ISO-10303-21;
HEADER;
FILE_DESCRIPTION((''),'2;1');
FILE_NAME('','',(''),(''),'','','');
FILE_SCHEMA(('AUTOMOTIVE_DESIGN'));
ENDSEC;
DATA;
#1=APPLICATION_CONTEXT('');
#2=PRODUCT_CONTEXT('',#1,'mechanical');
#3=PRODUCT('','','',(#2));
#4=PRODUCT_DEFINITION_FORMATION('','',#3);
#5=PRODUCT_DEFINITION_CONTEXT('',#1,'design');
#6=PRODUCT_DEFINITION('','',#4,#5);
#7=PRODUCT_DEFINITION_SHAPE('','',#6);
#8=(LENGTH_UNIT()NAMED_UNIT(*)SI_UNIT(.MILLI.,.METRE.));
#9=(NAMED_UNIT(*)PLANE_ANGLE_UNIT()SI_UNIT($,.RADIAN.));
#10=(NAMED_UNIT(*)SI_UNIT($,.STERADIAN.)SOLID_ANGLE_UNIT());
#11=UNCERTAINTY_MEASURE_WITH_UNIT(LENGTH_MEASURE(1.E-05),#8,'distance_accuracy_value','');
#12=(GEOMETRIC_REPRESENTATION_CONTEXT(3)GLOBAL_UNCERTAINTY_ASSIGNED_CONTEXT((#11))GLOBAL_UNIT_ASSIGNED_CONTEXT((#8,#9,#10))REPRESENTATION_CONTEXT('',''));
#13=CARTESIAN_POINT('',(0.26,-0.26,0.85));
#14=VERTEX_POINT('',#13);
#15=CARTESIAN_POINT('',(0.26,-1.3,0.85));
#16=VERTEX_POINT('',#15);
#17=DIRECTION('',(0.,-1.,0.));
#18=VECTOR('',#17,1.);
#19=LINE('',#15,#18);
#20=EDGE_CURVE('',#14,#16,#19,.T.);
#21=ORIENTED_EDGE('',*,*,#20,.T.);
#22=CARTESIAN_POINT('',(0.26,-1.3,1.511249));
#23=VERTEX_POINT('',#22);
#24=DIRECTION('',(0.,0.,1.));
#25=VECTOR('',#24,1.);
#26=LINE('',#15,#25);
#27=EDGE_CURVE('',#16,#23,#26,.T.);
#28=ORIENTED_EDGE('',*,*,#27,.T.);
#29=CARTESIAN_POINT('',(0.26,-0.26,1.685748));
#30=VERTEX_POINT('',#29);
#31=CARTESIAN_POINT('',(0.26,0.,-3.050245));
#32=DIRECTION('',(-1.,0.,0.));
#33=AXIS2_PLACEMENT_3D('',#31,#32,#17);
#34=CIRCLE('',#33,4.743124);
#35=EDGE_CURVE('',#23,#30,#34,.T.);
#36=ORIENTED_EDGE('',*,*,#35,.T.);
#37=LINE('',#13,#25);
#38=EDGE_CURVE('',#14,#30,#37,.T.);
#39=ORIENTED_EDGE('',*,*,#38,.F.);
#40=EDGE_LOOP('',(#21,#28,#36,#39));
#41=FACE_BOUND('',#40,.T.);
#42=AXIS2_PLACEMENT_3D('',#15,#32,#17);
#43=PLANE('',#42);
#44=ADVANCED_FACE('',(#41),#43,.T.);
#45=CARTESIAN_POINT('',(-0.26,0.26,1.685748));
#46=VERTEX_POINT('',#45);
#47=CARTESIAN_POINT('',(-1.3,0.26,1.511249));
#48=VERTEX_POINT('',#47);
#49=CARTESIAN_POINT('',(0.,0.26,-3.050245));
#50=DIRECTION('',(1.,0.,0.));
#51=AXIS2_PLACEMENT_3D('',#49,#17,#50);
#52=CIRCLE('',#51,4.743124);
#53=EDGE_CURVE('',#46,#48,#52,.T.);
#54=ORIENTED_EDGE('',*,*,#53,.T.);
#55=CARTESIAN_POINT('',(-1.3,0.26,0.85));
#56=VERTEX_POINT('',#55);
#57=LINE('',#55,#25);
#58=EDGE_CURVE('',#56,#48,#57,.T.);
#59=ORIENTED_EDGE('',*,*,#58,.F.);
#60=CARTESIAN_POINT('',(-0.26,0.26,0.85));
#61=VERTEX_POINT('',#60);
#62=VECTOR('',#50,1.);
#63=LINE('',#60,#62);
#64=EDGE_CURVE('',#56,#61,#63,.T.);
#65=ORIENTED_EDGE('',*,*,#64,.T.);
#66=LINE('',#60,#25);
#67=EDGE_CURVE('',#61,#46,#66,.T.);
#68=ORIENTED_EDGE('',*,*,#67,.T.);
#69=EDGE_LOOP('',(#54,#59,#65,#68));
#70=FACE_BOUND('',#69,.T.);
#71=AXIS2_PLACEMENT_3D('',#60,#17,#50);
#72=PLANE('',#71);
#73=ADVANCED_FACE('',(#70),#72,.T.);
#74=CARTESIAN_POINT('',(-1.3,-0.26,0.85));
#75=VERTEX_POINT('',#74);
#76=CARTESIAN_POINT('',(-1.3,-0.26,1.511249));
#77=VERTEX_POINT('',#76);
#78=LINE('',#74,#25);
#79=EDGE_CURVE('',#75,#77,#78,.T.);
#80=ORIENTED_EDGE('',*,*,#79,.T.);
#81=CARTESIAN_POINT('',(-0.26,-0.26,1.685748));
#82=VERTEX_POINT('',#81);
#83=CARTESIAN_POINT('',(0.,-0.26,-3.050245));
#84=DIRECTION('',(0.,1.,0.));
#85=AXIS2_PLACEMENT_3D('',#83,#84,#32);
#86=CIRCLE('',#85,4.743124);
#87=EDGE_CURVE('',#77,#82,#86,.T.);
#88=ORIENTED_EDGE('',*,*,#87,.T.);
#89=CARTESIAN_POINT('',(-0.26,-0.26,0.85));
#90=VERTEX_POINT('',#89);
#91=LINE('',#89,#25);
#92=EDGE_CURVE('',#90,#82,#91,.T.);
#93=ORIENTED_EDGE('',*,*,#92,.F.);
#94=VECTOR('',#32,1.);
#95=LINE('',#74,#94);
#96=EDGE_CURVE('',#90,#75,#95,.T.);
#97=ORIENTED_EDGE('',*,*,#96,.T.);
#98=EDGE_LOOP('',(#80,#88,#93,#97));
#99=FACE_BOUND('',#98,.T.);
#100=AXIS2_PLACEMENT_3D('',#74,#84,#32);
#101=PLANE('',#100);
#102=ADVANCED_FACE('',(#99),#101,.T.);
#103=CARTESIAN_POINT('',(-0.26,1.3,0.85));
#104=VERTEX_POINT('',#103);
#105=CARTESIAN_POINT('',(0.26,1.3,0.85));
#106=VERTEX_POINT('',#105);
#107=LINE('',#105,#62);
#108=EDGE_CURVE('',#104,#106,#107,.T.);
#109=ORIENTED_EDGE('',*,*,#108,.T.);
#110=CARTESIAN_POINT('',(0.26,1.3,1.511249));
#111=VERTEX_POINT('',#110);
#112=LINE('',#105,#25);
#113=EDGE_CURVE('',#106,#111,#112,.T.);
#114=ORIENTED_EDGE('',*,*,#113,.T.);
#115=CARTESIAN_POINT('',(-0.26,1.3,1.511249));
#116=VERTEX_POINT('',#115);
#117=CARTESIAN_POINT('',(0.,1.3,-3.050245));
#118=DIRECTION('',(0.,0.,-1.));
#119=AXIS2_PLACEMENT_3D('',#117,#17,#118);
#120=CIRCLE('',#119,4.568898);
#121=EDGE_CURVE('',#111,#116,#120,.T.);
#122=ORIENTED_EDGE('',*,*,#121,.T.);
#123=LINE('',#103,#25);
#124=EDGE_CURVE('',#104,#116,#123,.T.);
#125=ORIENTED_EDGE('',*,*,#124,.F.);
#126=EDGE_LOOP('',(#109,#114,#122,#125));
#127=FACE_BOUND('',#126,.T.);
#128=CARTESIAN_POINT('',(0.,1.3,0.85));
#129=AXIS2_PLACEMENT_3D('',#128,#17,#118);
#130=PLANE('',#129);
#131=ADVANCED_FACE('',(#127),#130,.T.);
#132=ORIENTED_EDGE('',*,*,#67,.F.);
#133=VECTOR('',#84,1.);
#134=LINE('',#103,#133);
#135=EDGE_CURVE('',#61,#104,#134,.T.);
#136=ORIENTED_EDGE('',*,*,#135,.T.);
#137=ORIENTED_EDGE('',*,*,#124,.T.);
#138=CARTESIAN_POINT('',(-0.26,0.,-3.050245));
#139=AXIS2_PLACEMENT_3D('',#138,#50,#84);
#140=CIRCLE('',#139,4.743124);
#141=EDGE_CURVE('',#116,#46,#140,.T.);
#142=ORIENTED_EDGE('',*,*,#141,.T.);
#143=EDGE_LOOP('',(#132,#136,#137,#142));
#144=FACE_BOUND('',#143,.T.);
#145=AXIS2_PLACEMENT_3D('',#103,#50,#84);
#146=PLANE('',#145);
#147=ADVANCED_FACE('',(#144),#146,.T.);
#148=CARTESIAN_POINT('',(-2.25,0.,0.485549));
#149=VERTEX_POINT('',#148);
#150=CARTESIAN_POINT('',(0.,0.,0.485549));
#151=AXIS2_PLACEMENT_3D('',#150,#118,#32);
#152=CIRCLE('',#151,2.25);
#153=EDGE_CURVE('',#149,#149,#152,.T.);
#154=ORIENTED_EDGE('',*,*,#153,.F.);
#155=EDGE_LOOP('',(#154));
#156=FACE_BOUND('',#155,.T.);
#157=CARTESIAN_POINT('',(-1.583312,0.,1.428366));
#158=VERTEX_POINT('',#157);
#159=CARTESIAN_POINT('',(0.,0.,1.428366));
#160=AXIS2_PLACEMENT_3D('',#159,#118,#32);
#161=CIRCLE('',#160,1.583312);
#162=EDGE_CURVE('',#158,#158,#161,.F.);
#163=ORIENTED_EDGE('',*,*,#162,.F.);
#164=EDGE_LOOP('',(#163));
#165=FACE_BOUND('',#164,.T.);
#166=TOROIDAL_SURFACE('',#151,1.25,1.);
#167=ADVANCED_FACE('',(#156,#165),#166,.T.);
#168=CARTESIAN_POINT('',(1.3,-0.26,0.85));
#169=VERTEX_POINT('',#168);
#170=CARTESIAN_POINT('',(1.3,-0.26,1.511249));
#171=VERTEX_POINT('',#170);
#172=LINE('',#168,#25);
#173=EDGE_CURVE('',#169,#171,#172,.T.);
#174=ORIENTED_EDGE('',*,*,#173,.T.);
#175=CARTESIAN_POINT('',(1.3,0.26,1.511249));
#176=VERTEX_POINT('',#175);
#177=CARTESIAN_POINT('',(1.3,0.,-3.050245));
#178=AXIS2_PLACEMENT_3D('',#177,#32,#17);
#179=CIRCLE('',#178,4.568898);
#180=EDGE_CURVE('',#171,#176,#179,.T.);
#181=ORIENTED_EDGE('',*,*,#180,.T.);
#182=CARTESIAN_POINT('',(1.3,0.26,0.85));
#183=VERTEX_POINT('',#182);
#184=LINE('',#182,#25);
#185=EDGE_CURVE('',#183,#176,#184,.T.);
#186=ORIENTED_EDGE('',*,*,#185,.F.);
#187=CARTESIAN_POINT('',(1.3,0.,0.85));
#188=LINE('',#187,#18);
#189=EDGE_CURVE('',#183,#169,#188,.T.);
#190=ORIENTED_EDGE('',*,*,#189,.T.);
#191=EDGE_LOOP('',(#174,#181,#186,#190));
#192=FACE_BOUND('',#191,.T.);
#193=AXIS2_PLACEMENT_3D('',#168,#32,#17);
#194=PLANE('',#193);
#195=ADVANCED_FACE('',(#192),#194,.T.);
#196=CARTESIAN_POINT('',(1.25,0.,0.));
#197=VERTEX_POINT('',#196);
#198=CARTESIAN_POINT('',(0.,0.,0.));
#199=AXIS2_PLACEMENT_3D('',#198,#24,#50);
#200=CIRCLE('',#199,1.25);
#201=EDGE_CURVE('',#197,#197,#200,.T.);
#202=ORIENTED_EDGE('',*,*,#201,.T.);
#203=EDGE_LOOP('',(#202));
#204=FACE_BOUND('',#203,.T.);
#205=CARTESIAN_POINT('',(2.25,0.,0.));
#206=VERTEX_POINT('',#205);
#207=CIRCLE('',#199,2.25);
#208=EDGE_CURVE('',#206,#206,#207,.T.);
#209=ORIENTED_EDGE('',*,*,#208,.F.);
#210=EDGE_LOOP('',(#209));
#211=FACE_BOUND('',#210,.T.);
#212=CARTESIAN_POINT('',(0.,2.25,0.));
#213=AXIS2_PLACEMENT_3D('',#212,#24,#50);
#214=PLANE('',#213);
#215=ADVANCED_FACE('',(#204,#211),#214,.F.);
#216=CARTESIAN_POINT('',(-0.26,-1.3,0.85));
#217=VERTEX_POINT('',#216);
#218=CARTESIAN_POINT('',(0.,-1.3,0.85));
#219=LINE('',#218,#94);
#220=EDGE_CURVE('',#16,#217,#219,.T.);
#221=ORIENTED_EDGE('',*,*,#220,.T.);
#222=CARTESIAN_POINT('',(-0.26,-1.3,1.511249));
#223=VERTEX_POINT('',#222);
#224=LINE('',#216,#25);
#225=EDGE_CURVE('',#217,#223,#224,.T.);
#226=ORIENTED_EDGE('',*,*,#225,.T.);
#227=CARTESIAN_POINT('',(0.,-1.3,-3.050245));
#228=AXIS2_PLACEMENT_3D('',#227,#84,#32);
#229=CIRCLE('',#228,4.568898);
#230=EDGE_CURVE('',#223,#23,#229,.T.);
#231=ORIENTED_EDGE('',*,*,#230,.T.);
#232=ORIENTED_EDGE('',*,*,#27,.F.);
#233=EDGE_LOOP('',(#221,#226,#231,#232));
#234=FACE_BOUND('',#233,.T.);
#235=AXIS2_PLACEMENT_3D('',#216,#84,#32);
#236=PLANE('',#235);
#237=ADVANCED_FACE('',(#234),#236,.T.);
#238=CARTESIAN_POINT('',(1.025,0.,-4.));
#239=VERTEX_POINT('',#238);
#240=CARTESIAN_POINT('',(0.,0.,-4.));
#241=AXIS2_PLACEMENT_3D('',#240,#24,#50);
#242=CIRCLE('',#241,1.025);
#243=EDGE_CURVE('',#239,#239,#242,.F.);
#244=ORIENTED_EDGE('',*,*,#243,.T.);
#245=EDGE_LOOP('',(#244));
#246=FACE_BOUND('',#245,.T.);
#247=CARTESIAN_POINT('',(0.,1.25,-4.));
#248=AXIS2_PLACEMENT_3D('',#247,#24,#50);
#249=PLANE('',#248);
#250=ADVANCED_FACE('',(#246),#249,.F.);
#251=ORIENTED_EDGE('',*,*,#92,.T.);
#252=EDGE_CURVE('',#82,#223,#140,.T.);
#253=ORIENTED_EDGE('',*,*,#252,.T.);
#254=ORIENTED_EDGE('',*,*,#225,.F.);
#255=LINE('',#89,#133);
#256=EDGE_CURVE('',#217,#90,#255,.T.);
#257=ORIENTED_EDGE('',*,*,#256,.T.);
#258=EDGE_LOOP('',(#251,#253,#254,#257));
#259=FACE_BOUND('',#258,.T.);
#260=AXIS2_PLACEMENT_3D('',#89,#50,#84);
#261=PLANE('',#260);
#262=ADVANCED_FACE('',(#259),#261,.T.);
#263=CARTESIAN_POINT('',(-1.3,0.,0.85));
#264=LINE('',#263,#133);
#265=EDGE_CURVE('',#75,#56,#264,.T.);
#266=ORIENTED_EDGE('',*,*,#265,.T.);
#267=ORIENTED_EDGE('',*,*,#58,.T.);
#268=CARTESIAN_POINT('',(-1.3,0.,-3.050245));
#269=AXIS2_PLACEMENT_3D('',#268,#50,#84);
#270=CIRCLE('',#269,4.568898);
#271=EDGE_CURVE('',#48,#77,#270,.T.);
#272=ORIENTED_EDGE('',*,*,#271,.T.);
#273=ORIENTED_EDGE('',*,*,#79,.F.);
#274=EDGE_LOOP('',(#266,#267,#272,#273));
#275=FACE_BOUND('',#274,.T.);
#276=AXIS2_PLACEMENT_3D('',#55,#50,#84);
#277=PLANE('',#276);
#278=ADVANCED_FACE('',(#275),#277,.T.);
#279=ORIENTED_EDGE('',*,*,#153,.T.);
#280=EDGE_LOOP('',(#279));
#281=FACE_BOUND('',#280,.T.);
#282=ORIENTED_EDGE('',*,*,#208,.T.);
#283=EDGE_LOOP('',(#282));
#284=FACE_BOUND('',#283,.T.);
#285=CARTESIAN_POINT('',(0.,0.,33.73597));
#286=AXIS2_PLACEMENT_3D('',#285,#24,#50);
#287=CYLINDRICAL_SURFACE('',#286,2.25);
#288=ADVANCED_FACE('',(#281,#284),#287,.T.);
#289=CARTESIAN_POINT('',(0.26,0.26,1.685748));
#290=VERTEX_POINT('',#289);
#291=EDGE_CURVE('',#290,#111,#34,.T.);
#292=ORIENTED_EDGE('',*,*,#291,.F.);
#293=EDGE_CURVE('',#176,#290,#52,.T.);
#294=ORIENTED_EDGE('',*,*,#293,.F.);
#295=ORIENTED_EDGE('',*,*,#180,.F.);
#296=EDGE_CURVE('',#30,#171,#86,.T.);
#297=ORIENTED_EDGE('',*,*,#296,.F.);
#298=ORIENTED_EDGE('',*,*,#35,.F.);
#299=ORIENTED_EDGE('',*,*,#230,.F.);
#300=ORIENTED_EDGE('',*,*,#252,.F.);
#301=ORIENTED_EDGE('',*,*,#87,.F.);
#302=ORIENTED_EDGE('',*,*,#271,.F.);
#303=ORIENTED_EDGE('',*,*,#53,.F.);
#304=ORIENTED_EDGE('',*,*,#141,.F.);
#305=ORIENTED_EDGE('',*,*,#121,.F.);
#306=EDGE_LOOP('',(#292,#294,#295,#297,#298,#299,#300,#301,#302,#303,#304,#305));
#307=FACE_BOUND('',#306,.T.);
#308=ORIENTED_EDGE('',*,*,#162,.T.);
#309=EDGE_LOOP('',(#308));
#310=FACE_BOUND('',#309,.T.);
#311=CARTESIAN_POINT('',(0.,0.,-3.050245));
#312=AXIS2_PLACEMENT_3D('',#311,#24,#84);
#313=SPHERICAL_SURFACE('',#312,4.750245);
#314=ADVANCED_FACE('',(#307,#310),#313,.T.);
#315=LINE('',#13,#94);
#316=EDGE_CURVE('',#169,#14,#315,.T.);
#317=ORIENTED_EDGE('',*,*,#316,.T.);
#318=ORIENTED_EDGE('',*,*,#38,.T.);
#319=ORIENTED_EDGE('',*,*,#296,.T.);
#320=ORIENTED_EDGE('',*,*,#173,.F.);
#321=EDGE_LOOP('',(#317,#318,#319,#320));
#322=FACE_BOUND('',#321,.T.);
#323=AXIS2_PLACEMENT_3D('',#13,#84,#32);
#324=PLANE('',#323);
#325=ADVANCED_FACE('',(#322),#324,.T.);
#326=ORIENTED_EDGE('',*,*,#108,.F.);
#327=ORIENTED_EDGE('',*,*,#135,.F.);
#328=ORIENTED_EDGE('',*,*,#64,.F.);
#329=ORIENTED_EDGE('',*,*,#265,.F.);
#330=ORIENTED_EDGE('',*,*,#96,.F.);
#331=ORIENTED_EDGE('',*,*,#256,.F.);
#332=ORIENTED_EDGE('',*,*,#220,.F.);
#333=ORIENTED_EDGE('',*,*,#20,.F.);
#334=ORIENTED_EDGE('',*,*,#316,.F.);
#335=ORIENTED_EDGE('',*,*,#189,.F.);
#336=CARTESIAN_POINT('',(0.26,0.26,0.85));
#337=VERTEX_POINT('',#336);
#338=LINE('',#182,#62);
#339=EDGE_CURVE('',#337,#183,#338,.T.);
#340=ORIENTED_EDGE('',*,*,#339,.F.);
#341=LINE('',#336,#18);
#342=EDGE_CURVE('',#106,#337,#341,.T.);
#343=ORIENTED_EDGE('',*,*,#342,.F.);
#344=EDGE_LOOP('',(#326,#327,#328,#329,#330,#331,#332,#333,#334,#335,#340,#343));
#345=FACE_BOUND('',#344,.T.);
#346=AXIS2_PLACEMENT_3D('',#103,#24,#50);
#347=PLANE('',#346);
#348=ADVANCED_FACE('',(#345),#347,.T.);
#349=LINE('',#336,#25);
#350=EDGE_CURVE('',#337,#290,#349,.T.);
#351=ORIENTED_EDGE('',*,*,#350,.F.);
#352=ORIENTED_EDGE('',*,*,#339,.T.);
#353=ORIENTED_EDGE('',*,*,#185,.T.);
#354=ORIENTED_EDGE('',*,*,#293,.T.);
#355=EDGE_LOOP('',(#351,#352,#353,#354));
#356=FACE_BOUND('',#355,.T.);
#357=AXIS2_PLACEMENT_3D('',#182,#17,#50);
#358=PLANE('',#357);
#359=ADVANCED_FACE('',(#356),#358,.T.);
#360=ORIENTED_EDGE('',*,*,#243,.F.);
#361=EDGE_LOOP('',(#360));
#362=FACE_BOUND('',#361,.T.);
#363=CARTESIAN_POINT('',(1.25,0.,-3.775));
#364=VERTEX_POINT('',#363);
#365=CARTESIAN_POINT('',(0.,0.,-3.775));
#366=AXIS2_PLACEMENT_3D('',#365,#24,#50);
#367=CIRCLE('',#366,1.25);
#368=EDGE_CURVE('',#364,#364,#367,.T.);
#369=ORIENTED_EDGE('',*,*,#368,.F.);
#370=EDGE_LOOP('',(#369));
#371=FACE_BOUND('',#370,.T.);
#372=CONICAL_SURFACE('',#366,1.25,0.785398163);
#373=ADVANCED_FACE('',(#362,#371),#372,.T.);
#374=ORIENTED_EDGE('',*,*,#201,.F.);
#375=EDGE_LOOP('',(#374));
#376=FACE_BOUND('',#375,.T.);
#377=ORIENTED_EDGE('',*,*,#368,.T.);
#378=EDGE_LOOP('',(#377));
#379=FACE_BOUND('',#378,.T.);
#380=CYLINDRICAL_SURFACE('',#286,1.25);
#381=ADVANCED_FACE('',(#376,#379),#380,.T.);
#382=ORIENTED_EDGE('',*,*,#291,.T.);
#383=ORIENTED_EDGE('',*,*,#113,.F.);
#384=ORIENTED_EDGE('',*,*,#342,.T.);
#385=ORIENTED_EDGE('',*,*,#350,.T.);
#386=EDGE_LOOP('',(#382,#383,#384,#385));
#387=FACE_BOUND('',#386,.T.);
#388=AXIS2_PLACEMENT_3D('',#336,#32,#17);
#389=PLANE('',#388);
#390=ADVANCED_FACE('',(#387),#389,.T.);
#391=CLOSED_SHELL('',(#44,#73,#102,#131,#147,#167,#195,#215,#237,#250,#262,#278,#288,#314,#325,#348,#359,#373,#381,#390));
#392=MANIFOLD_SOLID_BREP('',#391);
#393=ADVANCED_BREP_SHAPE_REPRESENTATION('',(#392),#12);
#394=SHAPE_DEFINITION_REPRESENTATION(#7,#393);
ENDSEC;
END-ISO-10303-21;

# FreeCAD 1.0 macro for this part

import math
import FreeCAD as App
import Part
import Sketcher

V = App.Vector
Q = App.Units.Quantity


def edges_at(feature, points):
    """Names of the edges that pass closest to the given points."""
    edges = feature.Shape.Edges
    near = lambda p: min(range(len(edges)), key=lambda i: edges[i].distToShape(Part.Vertex(*p))[0])
    return sorted({f"Edge{near(p) + 1}" for p in points})

doc = App.newDocument("Part")
params = doc.addObject("Spreadsheet::Sheet", "Params")
for row, (alias, value) in enumerate([
    ("sketch1_width", "1 mm"),
    ("sketch1_height", "4 mm"),
    ("sketch1_height2", "5.7 mm"),
    ("sketch1_width2", "1.25 mm"),
    ("revolution_angle", "360 deg"),
    ("sketch2_width", "0.52 mm"),
    ("sketch2_width2", "1.04 mm"),
    ("pocket1_length", "0.85 mm"),
    ("fillet_radius", "1 mm"),
    ("chamfer_size", "0.225 mm"),
], start=1):
    params.set(f"A{row}", alias)
    params.set(f"B{row}", "=" + value)
    params.setAlias(f"B{row}", alias)

body = doc.addObject("PartDesign::Body", "Body")

sketch1 = body.newObject("Sketcher::SketchObject", "Sketch")
sketch1.AttachmentSupport = (doc.getObject("YZ_Plane"), [""])
sketch1.MapMode = "FlatFace"
sketch1.addGeometry([
    Part.LineSegment(V(2.2, 0, 0), V(2.2, 1.1, 0)),
    Part.ArcOfCircle(Part.Circle(V(0, -3.1, 0), V(0, 0, 1), 4.8), math.radians(62), math.radians(90)),
    Part.LineSegment(V(0, 1.7, 0), V(0, -4, 0)),
    Part.LineSegment(V(0, -4, 0), V(1.2, -4, 0)),
    Part.LineSegment(V(1.2, -4, 0), V(1.2, 0, 0)),
    Part.LineSegment(V(1.2, 0, 0), V(2.2, 0, 0)),
], False)
sketch1.addConstraint([
    Sketcher.Constraint("Coincident", 0, 2, 1, 1),
    Sketcher.Constraint("Coincident", 1, 2, 2, 1),
    Sketcher.Constraint("Coincident", 2, 2, 3, 1),
    Sketcher.Constraint("Coincident", 3, 2, 4, 1),
    Sketcher.Constraint("Coincident", 4, 2, 5, 1),
    Sketcher.Constraint("Coincident", 5, 2, 0, 1),
    Sketcher.Constraint("Vertical", 0),
    Sketcher.Constraint("Vertical", 2),
    Sketcher.Constraint("Horizontal", 3),
    Sketcher.Constraint("Vertical", 4),
    Sketcher.Constraint("Horizontal", 5),
    Sketcher.Constraint("PointOnObject", 1, 3, -2),
    Sketcher.Constraint("PointOnObject", 1, 2, -2),
    Sketcher.Constraint("PointOnObject", 4, 2, -1),
    Sketcher.Constraint("DistanceX", 5, 1, 5, 2, Q("1 mm")),
    Sketcher.Constraint("DistanceY", 4, 1, 4, 2, Q("4 mm")),
    Sketcher.Constraint("DistanceY", 2, 2, 2, 1, Q("5.7 mm")),
    Sketcher.Constraint("DistanceX", 3, 1, 3, 2, Q("1.25 mm")),
    Sketcher.Constraint("Radius", 1, Q("4.750245 mm")),
])
sketch1.setExpression("Constraints[14]", "Params.sketch1_width")
sketch1.setExpression("Constraints[15]", "Params.sketch1_height")
sketch1.setExpression("Constraints[16]", "Params.sketch1_height2")
sketch1.setExpression("Constraints[17]", "Params.sketch1_width2")
revolution = body.newObject("PartDesign::Revolution", "Revolution")
revolution.Profile = sketch1
revolution.ReferenceAxis = (sketch1, ["V_Axis"])
revolution.setExpression("Angle", "Params.revolution_angle")

sketch2 = body.newObject("Sketcher::SketchObject", "Sketch001")
sketch2.AttachmentSupport = (doc.getObject("XY_Plane"), [""])
sketch2.MapMode = "FlatFace"
sketch2.AttachmentOffset = App.Placement(V(0, 0, 1.7), App.Rotation())
sketch2.addGeometry([
    Part.LineSegment(V(-0.3, 1.3, 0), V(0.3, 1.3, 0)),
    Part.LineSegment(V(0.3, 1.3, 0), V(0.3, 0.3, 0)),
    Part.LineSegment(V(0.3, 0.3, 0), V(1.3, 0.3, 0)),
    Part.LineSegment(V(1.3, 0.3, 0), V(1.3, -0.3, 0)),
    Part.LineSegment(V(1.3, -0.3, 0), V(0.3, -0.3, 0)),
    Part.LineSegment(V(0.3, -0.3, 0), V(0.3, -1.3, 0)),
    Part.LineSegment(V(0.3, -1.3, 0), V(-0.3, -1.3, 0)),
    Part.LineSegment(V(-0.3, -1.3, 0), V(-0.3, -0.3, 0)),
    Part.LineSegment(V(-0.3, -0.3, 0), V(-1.3, -0.3, 0)),
    Part.LineSegment(V(-1.3, -0.3, 0), V(-1.3, 0.3, 0)),
    Part.LineSegment(V(-1.3, 0.3, 0), V(-0.3, 0.3, 0)),
    Part.LineSegment(V(-0.3, 0.3, 0), V(-0.3, 1.3, 0)),
], False)
sketch2.addConstraint([
    Sketcher.Constraint("Coincident", 0, 2, 1, 1),
    Sketcher.Constraint("Coincident", 1, 2, 2, 1),
    Sketcher.Constraint("Coincident", 2, 2, 3, 1),
    Sketcher.Constraint("Coincident", 3, 2, 4, 1),
    Sketcher.Constraint("Coincident", 4, 2, 5, 1),
    Sketcher.Constraint("Coincident", 5, 2, 6, 1),
    Sketcher.Constraint("Coincident", 6, 2, 7, 1),
    Sketcher.Constraint("Coincident", 7, 2, 8, 1),
    Sketcher.Constraint("Coincident", 8, 2, 9, 1),
    Sketcher.Constraint("Coincident", 9, 2, 10, 1),
    Sketcher.Constraint("Coincident", 10, 2, 11, 1),
    Sketcher.Constraint("Coincident", 11, 2, 0, 1),
    Sketcher.Constraint("Horizontal", 0),
    Sketcher.Constraint("Vertical", 1),
    Sketcher.Constraint("Horizontal", 2),
    Sketcher.Constraint("Vertical", 3),
    Sketcher.Constraint("Horizontal", 4),
    Sketcher.Constraint("Vertical", 5),
    Sketcher.Constraint("Horizontal", 6),
    Sketcher.Constraint("Vertical", 7),
    Sketcher.Constraint("Horizontal", 8),
    Sketcher.Constraint("Vertical", 9),
    Sketcher.Constraint("Horizontal", 10),
    Sketcher.Constraint("Vertical", 11),
    Sketcher.Constraint("Symmetric", 0, 2, 6, 2, -1, 1),
    Sketcher.Constraint("Symmetric", 2, 2, 8, 2, -1, 1),
    Sketcher.Constraint("Symmetric", 4, 2, 10, 2, -1, 1),
    Sketcher.Constraint("Symmetric", 4, 2, 7, 2, -2),
    Sketcher.Constraint("Equal", 10, 1),
    Sketcher.Constraint("Equal", 6, 3),
    Sketcher.Constraint("DistanceX", 0, 1, 0, 2, Q("0.52 mm")),
    Sketcher.Constraint("DistanceX", 2, 1, 2, 2, Q("1.04 mm")),
])
sketch2.setExpression("Constraints[30]", "Params.sketch2_width")
sketch2.setExpression("Constraints[31]", "Params.sketch2_width2")
pocket1 = body.newObject("PartDesign::Pocket", "Pocket")
pocket1.Profile = sketch2
pocket1.setExpression("Length", "Params.pocket1_length")
doc.recompute()

fillet = body.newObject("PartDesign::Fillet", "Fillet")
fillet.Base = (pocket1, edges_at(pocket1, [(0, -2.25, 1.133)]))
fillet.setExpression("Radius", "Params.fillet_radius")
doc.recompute()

chamfer = body.newObject("PartDesign::Chamfer", "Chamfer")
chamfer.Base = (fillet, edges_at(fillet, [(0, -1.25, -4)]))
chamfer.setExpression("Size", "Params.chamfer_size")

doc.recompute()
